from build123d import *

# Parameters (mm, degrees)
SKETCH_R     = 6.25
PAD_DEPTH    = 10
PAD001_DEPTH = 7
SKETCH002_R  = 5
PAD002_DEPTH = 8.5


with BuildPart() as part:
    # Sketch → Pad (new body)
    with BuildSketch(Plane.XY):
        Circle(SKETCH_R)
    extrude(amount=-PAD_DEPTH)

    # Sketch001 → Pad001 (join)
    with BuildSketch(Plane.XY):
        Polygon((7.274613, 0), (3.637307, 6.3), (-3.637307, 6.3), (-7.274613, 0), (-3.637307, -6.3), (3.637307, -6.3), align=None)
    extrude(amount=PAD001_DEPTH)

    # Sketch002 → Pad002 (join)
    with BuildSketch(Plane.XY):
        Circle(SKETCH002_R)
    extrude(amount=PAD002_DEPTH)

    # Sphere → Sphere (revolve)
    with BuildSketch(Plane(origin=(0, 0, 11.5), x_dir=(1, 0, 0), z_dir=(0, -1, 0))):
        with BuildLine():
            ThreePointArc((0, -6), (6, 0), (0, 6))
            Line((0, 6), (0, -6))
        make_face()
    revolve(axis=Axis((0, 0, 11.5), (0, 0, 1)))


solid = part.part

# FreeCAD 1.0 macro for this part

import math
import FreeCAD as App
import Part
import Sketcher

V = App.Vector
Q = App.Units.Quantity


def add_polygon(sketch, points):
    """Adds a closed chain of lines whose ends are joined by coincident constraints."""
    first, n = sketch.GeometryCount, len(points)
    for a, b in zip(points, points[1:] + points[:1]):
        sketch.addGeometry(Part.LineSegment(App.Vector(*a, 0), App.Vector(*b, 0)), False)
    for i in range(n):
        sketch.addConstraint(Sketcher.Constraint("Coincident", first + i, 2, first + (i + 1) % n, 1))

doc = App.newDocument("Part")
body = doc.addObject("PartDesign::Body", "Body")

# Sketch on XY plane
sketch1 = body.newObject("Sketcher::SketchObject", "Sketch")
sketch1.AttachmentSupport = (doc.getObject("XY_Plane"), [""])
sketch1.MapMode = "FlatFace"
sketch1.addGeometry(Part.Circle(V(0, 0, 0), V(0, 0, 1), 6), False)
sketch1.addConstraint([
    Sketcher.Constraint("Coincident", 0, 3, -1, 1),
    Sketcher.Constraint("Diameter", 0, 12.5),
])
pad1 = body.newObject("PartDesign::Pad", "Pad")
pad1.Profile = sketch1
pad1.Length = 10
pad1.Reversed = True

# Sketch on XY plane
sketch2 = body.newObject("Sketcher::SketchObject", "Sketch001")
sketch2.AttachmentSupport = (doc.getObject("XY_Plane"), [""])
sketch2.MapMode = "FlatFace"
add_polygon(sketch2, [(7, 0), (4, 6), (-4, 6), (-7, 0), (-4, -6), (4, -6)])  # lines 0-5
sketch2.addConstraint([
    Sketcher.Constraint("Horizontal", 1),
    Sketcher.Constraint("Horizontal", 4),
    Sketcher.Constraint("Symmetric", 0, 2, 3, 2, -1, 1),
    Sketcher.Constraint("Symmetric", 2, 2, 5, 2, -1, 1),
    Sketcher.Constraint("PointOnObject", 2, 2, -1),
    Sketcher.Constraint("Parallel", 2, 5),
    Sketcher.Constraint("Vertical", 1, 2, 3, 2),
    Sketcher.Constraint("Angle", 0, Q("119.999995 deg")),
    Sketcher.Constraint("DistanceY", -1, 1, 0, 2, 6.3),
    Sketcher.Constraint("DistanceX", 1, 2, 1, 1, 7.274614),
])
pad2 = body.newObject("PartDesign::Pad", "Pad001")
pad2.Profile = sketch2
pad2.Length = 7

# Sketch on XY plane
sketch3 = body.newObject("Sketcher::SketchObject", "Sketch002")
sketch3.AttachmentSupport = (doc.getObject("XY_Plane"), [""])
sketch3.MapMode = "FlatFace"
sketch3.addGeometry(Part.Circle(V(0, 0, 0), V(0, 0, 1), 5), False)
sketch3.addConstraint([
    Sketcher.Constraint("Coincident", 0, 3, -1, 1),
    Sketcher.Constraint("Diameter", 0, 10.0),
])
pad3 = body.newObject("PartDesign::Pad", "Pad002")
pad3.Profile = sketch3
pad3.Length = 8.5

# Sketch on XZ plane
sketch4 = body.newObject("Sketcher::SketchObject", "Sketch003")
sketch4.AttachmentSupport = (doc.getObject("XZ_Plane"), [""])
sketch4.MapMode = "FlatFace"
sketch4.addGeometry([
    Part.ArcOfCircle(Part.Circle(V(0, 12, 0), V(0, 0, 1), 6), math.radians(-90), math.radians(90)),
    Part.LineSegment(V(0, 18, 0), V(0, 6, 0)),
], False)
sketch4.addConstraint([
    Sketcher.Constraint("Coincident", 0, 1, 1, 2),
    Sketcher.Constraint("Coincident", 1, 1, 0, 2),
    Sketcher.Constraint("Vertical", 1),
    Sketcher.Constraint("PointOnObject", 0, 3, -2),
    Sketcher.Constraint("PointOnObject", 0, 1, -2),
    Sketcher.Constraint("Radius", 0, 6.0),
    Sketcher.Constraint("DistanceY", -1, 1, 0, 3, 11.5),
])
revolution = body.newObject("PartDesign::Revolution", "Revolution")
revolution.Profile = sketch4
revolution.ReferenceAxis = (sketch4, ["V_Axis"])
revolution.Angle = 360

doc.recompute()
